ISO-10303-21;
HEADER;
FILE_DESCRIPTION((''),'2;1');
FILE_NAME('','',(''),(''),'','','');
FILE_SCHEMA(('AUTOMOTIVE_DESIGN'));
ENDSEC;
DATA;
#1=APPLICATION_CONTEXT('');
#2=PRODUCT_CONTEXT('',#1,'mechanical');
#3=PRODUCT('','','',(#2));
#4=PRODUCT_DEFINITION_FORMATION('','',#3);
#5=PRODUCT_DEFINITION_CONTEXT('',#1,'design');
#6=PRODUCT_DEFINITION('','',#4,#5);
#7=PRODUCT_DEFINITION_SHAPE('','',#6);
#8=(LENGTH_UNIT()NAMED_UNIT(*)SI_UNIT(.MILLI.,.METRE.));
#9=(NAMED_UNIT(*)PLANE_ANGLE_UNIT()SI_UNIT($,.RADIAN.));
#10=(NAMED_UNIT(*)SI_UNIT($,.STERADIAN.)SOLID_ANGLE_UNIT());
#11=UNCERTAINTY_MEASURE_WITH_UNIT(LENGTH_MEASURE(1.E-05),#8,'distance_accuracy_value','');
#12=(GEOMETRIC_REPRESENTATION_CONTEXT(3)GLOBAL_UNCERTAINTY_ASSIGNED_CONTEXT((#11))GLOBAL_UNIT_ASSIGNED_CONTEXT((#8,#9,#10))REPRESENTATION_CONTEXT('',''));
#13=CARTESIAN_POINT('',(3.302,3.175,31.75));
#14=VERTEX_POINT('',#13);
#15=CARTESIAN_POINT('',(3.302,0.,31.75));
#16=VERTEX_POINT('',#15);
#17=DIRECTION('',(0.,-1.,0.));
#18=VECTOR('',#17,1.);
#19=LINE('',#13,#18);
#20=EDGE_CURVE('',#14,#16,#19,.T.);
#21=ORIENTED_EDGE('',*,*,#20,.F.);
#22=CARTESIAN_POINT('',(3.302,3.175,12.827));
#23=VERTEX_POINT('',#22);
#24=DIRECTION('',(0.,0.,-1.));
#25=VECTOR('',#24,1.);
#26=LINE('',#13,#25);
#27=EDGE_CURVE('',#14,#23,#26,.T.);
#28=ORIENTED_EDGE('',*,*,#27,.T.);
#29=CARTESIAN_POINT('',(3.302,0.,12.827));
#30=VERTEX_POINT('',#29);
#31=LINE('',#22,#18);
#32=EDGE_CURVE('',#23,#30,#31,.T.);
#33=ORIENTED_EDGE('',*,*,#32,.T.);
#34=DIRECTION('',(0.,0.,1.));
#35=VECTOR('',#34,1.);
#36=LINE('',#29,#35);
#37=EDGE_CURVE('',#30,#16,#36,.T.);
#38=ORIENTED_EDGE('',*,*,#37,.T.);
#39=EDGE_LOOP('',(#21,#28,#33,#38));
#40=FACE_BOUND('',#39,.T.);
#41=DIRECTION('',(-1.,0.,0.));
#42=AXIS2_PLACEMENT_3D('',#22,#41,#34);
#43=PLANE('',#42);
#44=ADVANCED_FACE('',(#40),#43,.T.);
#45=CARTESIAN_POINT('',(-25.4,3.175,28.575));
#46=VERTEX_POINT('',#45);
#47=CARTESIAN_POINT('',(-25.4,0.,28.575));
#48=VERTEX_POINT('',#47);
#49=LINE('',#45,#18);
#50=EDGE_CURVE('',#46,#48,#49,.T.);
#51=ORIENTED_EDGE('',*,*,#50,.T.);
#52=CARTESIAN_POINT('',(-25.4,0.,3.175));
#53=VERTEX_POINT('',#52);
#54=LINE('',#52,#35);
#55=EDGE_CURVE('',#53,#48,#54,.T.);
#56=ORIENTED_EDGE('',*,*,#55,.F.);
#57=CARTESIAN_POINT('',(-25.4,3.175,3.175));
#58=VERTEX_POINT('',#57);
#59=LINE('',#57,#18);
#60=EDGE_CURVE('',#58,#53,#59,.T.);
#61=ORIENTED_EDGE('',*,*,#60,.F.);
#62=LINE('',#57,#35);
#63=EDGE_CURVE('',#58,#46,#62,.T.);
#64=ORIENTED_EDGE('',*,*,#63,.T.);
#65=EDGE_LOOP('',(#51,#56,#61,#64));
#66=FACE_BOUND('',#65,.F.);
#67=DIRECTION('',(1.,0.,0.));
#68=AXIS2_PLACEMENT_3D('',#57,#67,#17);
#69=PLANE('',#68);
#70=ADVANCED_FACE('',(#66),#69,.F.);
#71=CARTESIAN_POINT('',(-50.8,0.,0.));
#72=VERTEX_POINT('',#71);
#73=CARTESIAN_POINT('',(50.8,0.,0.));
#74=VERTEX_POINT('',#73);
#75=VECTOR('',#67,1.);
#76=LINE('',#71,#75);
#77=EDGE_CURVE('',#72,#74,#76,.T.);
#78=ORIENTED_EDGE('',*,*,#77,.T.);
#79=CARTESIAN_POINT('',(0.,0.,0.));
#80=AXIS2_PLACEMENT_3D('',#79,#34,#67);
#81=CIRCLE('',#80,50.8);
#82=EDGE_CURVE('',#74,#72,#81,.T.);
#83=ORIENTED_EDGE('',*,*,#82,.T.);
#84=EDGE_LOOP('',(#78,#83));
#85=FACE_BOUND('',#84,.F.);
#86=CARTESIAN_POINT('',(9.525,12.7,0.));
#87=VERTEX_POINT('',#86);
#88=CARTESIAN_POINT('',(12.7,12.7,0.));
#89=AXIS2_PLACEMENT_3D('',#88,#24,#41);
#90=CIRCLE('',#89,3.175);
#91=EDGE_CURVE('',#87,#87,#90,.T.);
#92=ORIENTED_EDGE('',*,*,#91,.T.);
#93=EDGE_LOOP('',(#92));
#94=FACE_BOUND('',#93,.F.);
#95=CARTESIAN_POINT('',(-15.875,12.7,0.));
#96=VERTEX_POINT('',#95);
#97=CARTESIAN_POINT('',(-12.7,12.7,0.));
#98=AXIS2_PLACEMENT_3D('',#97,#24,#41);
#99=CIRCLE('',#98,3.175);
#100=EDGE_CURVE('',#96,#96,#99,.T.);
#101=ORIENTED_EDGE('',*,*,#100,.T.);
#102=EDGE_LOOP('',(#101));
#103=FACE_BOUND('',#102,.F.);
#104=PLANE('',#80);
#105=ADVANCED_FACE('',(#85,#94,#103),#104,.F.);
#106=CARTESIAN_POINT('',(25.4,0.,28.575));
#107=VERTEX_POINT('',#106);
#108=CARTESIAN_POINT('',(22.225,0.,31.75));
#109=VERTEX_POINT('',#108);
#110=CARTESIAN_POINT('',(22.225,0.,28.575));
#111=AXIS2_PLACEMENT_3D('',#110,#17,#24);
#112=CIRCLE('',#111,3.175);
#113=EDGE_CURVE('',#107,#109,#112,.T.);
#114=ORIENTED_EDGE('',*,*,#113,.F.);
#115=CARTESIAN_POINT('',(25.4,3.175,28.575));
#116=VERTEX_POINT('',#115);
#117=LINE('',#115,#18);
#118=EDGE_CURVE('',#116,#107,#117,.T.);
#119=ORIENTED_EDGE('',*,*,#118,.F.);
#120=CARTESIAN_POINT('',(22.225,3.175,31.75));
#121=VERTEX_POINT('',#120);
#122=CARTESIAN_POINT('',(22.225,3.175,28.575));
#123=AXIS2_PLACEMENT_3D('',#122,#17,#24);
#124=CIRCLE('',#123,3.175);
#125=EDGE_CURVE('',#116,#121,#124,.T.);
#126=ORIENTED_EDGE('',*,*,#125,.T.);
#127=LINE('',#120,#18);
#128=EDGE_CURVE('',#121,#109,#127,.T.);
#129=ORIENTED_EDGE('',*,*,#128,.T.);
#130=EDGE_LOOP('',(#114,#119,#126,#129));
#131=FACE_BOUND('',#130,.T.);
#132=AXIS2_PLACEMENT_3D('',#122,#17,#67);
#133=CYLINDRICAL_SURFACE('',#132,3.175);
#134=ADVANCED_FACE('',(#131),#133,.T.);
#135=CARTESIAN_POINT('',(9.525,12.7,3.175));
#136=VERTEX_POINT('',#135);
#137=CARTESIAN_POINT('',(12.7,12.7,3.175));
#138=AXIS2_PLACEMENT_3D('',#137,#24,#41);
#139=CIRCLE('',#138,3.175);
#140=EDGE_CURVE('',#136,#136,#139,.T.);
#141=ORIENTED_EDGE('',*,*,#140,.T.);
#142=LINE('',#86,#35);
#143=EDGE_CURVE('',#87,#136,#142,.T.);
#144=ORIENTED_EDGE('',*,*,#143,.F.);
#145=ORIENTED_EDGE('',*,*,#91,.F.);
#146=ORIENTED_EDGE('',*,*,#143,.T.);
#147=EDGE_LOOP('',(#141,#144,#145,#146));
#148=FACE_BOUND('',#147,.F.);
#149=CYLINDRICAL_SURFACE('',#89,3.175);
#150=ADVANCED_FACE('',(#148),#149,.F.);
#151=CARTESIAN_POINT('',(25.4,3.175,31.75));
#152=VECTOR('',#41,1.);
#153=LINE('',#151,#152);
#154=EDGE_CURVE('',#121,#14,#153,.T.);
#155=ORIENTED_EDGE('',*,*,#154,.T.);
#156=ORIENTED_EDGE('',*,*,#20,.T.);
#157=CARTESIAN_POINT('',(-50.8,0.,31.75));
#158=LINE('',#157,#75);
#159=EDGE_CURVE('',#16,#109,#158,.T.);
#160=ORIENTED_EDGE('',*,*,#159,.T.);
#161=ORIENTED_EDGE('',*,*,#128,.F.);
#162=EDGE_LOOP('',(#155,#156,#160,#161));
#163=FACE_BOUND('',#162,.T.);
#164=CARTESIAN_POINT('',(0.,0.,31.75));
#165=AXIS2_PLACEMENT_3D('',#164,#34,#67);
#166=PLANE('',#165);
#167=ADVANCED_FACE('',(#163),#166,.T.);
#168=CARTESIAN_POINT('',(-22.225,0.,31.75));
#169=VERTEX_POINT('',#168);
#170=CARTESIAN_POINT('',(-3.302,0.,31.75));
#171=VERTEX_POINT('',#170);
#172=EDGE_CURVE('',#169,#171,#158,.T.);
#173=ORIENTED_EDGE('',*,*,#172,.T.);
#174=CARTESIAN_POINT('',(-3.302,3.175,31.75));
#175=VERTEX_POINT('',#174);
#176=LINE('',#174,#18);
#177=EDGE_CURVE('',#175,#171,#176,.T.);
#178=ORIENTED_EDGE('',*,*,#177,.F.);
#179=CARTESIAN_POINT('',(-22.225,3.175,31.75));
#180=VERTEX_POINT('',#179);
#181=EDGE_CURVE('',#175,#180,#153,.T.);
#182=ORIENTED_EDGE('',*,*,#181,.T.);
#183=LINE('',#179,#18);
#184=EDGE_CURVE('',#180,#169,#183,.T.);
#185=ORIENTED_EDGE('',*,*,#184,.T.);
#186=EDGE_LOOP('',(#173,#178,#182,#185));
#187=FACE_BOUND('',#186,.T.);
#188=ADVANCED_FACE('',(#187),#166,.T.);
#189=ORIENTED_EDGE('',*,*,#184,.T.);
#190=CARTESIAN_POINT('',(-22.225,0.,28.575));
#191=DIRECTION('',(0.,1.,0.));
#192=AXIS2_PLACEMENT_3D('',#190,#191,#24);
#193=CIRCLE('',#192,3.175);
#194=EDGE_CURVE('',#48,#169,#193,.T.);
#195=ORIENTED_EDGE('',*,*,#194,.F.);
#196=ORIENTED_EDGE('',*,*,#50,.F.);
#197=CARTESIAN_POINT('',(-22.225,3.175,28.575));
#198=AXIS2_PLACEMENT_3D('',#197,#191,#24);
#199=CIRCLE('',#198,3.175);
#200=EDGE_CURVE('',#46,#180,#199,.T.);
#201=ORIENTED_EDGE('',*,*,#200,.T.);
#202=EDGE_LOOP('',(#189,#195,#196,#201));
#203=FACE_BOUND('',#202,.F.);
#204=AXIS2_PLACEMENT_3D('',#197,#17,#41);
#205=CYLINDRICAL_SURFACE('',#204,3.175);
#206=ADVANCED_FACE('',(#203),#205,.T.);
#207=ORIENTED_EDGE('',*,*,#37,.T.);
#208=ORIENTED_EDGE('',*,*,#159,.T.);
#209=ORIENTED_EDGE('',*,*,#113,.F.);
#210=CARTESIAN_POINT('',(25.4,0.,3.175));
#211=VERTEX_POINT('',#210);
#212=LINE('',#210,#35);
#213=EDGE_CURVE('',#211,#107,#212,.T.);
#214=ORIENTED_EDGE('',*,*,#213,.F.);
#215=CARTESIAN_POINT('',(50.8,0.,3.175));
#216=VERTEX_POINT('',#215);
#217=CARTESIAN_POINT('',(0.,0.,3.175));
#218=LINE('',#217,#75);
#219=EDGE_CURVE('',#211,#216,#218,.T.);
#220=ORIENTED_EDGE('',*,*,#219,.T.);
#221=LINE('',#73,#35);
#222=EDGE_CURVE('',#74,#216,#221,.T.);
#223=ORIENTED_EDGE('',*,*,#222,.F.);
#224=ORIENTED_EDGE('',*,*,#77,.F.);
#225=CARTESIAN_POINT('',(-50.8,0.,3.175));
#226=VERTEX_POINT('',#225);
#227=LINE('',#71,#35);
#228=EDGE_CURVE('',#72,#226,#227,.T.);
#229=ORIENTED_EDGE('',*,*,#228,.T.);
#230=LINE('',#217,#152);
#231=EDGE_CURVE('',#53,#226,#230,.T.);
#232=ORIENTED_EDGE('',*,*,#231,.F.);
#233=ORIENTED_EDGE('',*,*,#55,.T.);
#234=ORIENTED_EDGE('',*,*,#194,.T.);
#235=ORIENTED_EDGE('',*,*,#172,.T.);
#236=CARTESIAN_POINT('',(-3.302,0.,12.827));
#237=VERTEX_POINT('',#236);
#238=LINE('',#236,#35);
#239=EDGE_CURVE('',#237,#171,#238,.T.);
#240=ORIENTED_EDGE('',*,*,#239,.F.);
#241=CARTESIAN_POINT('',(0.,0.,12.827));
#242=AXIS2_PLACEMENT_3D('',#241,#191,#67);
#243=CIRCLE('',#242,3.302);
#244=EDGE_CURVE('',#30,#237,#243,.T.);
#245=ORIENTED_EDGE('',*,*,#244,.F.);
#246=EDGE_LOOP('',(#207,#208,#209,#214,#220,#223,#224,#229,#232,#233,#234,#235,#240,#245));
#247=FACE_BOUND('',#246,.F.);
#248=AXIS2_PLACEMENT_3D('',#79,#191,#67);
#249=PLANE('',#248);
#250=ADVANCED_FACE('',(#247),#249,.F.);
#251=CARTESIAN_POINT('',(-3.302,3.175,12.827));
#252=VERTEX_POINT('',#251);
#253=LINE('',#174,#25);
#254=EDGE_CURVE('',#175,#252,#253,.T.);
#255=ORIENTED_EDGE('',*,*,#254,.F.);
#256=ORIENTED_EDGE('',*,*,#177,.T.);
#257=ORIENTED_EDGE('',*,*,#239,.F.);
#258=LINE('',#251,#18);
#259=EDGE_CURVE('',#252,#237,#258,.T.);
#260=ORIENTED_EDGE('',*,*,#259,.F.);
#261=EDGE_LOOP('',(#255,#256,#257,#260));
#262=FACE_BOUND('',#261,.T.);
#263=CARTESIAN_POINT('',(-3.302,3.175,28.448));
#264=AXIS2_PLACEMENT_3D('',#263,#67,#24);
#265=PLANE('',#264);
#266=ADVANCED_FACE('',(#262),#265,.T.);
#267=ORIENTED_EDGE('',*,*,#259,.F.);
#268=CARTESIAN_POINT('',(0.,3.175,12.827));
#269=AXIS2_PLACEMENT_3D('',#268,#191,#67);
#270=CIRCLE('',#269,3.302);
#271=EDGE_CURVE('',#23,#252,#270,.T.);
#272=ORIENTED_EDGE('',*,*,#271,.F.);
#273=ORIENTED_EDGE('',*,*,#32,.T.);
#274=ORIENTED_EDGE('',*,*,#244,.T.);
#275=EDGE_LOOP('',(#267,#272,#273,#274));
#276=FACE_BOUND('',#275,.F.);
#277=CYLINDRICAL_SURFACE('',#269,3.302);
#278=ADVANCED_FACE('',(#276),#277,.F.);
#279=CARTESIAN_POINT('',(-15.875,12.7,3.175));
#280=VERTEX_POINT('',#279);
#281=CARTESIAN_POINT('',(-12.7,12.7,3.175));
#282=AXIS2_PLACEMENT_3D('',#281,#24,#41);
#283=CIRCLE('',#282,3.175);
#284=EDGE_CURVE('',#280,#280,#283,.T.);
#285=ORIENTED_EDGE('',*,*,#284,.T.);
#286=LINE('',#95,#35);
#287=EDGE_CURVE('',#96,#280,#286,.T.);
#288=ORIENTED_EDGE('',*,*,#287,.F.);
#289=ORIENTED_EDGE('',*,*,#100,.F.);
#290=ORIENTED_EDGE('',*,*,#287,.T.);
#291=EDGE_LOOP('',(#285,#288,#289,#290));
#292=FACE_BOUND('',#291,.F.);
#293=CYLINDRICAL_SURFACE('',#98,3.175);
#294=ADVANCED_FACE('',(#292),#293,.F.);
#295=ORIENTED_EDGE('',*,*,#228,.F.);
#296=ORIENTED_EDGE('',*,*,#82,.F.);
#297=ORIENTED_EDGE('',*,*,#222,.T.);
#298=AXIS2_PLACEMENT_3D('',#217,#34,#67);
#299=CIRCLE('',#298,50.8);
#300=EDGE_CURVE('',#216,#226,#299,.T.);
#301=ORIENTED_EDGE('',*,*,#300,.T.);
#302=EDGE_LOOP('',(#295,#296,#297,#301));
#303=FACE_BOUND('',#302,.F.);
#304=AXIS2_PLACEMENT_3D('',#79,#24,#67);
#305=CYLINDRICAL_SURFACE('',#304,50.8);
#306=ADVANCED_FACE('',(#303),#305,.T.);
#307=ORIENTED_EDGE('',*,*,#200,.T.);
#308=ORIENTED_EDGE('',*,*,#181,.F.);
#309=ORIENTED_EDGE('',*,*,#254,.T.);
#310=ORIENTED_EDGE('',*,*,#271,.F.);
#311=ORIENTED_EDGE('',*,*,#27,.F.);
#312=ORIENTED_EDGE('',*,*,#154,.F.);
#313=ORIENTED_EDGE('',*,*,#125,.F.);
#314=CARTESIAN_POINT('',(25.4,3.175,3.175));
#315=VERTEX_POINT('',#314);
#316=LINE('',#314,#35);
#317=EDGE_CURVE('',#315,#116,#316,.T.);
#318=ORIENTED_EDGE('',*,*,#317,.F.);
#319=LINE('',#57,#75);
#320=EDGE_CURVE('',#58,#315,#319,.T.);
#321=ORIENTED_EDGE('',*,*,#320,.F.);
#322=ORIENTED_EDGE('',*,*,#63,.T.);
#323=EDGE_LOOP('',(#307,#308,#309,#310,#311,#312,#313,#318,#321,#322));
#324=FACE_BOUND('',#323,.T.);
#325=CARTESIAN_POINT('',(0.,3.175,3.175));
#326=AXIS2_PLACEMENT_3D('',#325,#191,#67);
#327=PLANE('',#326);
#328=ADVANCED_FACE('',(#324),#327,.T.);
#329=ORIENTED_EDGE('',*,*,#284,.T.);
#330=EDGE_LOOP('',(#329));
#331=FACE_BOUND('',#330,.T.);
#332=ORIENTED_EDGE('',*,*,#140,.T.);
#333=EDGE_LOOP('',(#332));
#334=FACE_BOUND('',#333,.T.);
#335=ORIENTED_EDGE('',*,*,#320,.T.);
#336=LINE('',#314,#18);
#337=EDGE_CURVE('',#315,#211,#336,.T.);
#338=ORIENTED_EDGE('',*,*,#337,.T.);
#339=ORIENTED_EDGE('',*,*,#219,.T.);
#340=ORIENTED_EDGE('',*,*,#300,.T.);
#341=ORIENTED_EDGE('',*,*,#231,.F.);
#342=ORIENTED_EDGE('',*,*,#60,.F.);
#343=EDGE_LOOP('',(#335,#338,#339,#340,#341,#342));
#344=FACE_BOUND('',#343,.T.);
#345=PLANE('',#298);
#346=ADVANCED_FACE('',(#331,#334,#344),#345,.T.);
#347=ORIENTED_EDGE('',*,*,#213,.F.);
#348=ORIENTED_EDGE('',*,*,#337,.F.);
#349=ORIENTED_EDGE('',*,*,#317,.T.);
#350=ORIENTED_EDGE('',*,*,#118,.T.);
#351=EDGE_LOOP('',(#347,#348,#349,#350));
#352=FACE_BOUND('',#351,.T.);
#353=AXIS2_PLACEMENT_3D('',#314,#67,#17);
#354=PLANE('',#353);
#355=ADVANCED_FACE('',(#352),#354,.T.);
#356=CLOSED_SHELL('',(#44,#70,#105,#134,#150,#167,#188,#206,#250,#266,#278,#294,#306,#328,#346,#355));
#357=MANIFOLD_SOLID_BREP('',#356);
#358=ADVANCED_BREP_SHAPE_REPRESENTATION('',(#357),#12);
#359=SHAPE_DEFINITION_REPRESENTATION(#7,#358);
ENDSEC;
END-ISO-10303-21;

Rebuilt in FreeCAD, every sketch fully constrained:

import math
import FreeCAD as App
import Part
import Sketcher
Q = App.Units.Quantity


def edges_at(feature, points):
    """Names of the edges that pass closest to the given points."""
    edges = feature.Shape.Edges
    near = lambda p: min(range(len(edges)), key=lambda i: edges[i].distToShape(Part.Vertex(*p))[0])
    return sorted({f"Edge{near(p) + 1}" for p in points})

doc = App.newDocument("Part")
body = doc.addObject("PartDesign::Body", "Body")

sketch1 = doc.addObject("Sketcher::SketchObject", "Sketch")
body.addObject(sketch1)
sketch1.AttachmentSupport = (doc.XY_Plane, [""])
sketch1.MapMode = "FlatFace"
sketch1.addGeometry(Part.LineSegment(App.Vector(-51, 0, 0), App.Vector(51, 0, 0)), False)
sketch1.addGeometry(Part.ArcOfCircle(Part.Circle(App.Vector(0, 0, 0), App.Vector(0, 0, 1), 51), math.radians(0), math.radians(180)), False)
sketch1.addConstraint(Sketcher.Constraint("Coincident", 0, 1, 1, 2))
sketch1.addConstraint(Sketcher.Constraint("Coincident", 1, 1, 0, 2))
sketch1.addConstraint(Sketcher.Constraint("Horizontal", 0))
sketch1.addConstraint(Sketcher.Constraint("Coincident", 1, 3, -1, 1))
sketch1.addConstraint(Sketcher.Constraint("PointOnObject", 0, 1, -1))
sketch1.addConstraint(Sketcher.Constraint("Radius", 1, Q("2 in")))
pad1 = doc.addObject("PartDesign::Pad", "Pad")
body.addObject(pad1)
pad1.Profile = sketch1
pad1.Length = Q("0.125 in")

sketch2 = doc.addObject("Sketcher::SketchObject", "Sketch001")
body.addObject(sketch2)
sketch2.AttachmentSupport = (doc.XY_Plane, [""])
sketch2.MapMode = "FlatFace"
sketch2.AttachmentOffset = App.Placement(App.Vector(0, 0, 0.125 * 25.4), App.Rotation())
sketch2.addGeometry(Part.LineSegment(App.Vector(-25.4, 0, 0), App.Vector(25.4, 0, 0)), False)
sketch2.addGeometry(Part.LineSegment(App.Vector(25.4, 0, 0), App.Vector(25.4, 3.2, 0)), False)
sketch2.addGeometry(Part.LineSegment(App.Vector(25.4, 3.2, 0), App.Vector(-25.4, 3.2, 0)), False)
sketch2.addGeometry(Part.LineSegment(App.Vector(-25.4, 3.2, 0), App.Vector(-25.4, 0, 0)), False)
sketch2.addConstraint(Sketcher.Constraint("Coincident", 0, 2, 1, 1))
sketch2.addConstraint(Sketcher.Constraint("Coincident", 1, 2, 2, 1))
sketch2.addConstraint(Sketcher.Constraint("Coincident", 2, 2, 3, 1))
sketch2.addConstraint(Sketcher.Constraint("Coincident", 3, 2, 0, 1))
sketch2.addConstraint(Sketcher.Constraint("Horizontal", 0))
sketch2.addConstraint(Sketcher.Constraint("Vertical", 1))
sketch2.addConstraint(Sketcher.Constraint("Horizontal", 2))
sketch2.addConstraint(Sketcher.Constraint("Vertical", 3))
sketch2.addConstraint(Sketcher.Constraint("Symmetric", 0, 2, 3, 2, -1, 1))
sketch2.addConstraint(Sketcher.Constraint("DistanceX", -1, 1, 0, 2, Q("1 in")))
sketch2.addConstraint(Sketcher.Constraint("DistanceY", 1, 1, 1, 2, Q("0.125 in")))
pad2 = doc.addObject("PartDesign::Pad", "Pad001")
body.addObject(pad2)
pad2.Profile = sketch2
pad2.Length = Q("1.125 in")
doc.recompute()

fillet = doc.addObject("PartDesign::Fillet", "Fillet")
body.addObject(fillet)
fillet.Base = (pad2, edges_at(pad2, [(25.4, 1.587, 31.75), (-25.4, 1.587, 31.75)]))
fillet.Radius = Q("0.125 in")

sketch3 = doc.addObject("Sketcher::SketchObject", "Sketch002")
body.addObject(sketch3)
sketch3.AttachmentSupport = (doc.XZ_Plane, [""])
sketch3.MapMode = "FlatFace"
sketch3.AttachmentOffset = App.Placement(App.Vector(0, 0, -0.125 * 25.4), App.Rotation())
sketch3.addGeometry(Part.LineSegment(App.Vector(-3.3, 12.8, 0), App.Vector(-3.3, 31.8, 0)), False)
sketch3.addGeometry(Part.LineSegment(App.Vector(-3.3, 31.8, 0), App.Vector(3.3, 31.8, 0)), False)
sketch3.addGeometry(Part.LineSegment(App.Vector(3.3, 31.8, 0), App.Vector(3.3, 12.8, 0)), False)
sketch3.addGeometry(Part.ArcOfCircle(Part.Circle(App.Vector(0, 12.8, 0), App.Vector(0, 0, 1), 3.3), math.radians(180), math.radians(360)), False)
sketch3.addConstraint(Sketcher.Constraint("Coincident", 0, 2, 1, 1))
sketch3.addConstraint(Sketcher.Constraint("Coincident", 1, 2, 2, 1))
sketch3.addConstraint(Sketcher.Constraint("Tangent", 2, 2, 3, 2))
sketch3.addConstraint(Sketcher.Constraint("Tangent", 3, 1, 0, 1))
sketch3.addConstraint(Sketcher.Constraint("Vertical", 0))
sketch3.addConstraint(Sketcher.Constraint("Horizontal", 1))
sketch3.addConstraint(Sketcher.Constraint("Vertical", 2))
sketch3.addConstraint(Sketcher.Constraint("PointOnObject", 3, 3, -2))
sketch3.addConstraint(Sketcher.Constraint("Radius", 3, Q("0.13 in")))
sketch3.addConstraint(Sketcher.Constraint("DistanceY", 0, 1, 0, 2, Q("0.745 in")))
sketch3.addConstraint(Sketcher.Constraint("DistanceY", -1, 1, 0, 2, Q("1.25 in")))
pocket1 = doc.addObject("PartDesign::Pocket", "Pocket")
body.addObject(pocket1)
pocket1.Profile = sketch3
pocket1.Length = Q("0.125 in")
pocket1.Reversed = True

sketch4 = doc.addObject("Sketcher::SketchObject", "Sketch003")
body.addObject(sketch4)
sketch4.AttachmentSupport = (doc.XY_Plane, [""])
sketch4.MapMode = "FlatFace"
sketch4.addGeometry(Part.Circle(App.Vector(-12.7, 12.7, 0), App.Vector(0, 0, 1), 3.2), False)
sketch4.addGeometry(Part.Circle(App.Vector(12.7, 12.7, 0), App.Vector(0, 0, 1), 3.2), False)
sketch4.addConstraint(Sketcher.Constraint("Equal", 0, 1))
sketch4.addConstraint(Sketcher.Constraint("Symmetric", 0, 3, 1, 3, -2))
sketch4.addConstraint(Sketcher.Constraint("Diameter", 0, Q("0.25 in")))
sketch4.addConstraint(Sketcher.Constraint("DistanceX", 0, 3, -1, 1, Q("0.5 in")))
sketch4.addConstraint(Sketcher.Constraint("DistanceY", -1, 1, 0, 3, Q("0.5 in")))
pocket2 = doc.addObject("PartDesign::Pocket", "Pocket001")
body.addObject(pocket2)
pocket2.Profile = sketch4
pocket2.Length = Q("0.125 in")
pocket2.Reversed = True

doc.recompute()
